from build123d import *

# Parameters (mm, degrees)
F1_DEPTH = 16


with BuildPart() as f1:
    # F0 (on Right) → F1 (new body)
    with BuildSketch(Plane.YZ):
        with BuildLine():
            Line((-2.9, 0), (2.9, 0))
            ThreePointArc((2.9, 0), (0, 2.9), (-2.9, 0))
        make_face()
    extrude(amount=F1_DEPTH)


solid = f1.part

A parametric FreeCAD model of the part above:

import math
import FreeCAD as App
import Part
import Sketcher

V = App.Vector
Q = App.Units.Quantity

doc = App.newDocument("Part")
body = doc.addObject("PartDesign::Body", "Body")

# Sketch on YZ plane
sketch1 = doc.addObject("Sketcher::SketchObject", "Sketch")
body.addObject(sketch1)
sketch1.AttachmentSupport = (doc.YZ_Plane, [""])
sketch1.MapMode = "FlatFace"
sketch1.addGeometry(Part.LineSegment(V(-2.9, 0, 0), V(2.9, 0, 0)), False)
sketch1.addGeometry(Part.ArcOfCircle(Part.Circle(V(0, 0, 0), V(0, 0, 1), 2.9), math.radians(0), math.radians(180)), False)
sketch1.addConstraint(Sketcher.Constraint("Coincident", 0, 1, 1, 2))
sketch1.addConstraint(Sketcher.Constraint("Coincident", 1, 1, 0, 2))
sketch1.addConstraint(Sketcher.Constraint("Horizontal", 0))
sketch1.addConstraint(Sketcher.Constraint("Coincident", 1, 3, -1, 1))
sketch1.addConstraint(Sketcher.Constraint("PointOnObject", 0, 1, -1))
sketch1.addConstraint(Sketcher.Constraint("Radius", 1, Q("2.9 mm")))
pad1 = doc.addObject("PartDesign::Pad", "Pad")
body.addObject(pad1)
pad1.Profile = sketch1
pad1.Length = 16

doc.recompute()
